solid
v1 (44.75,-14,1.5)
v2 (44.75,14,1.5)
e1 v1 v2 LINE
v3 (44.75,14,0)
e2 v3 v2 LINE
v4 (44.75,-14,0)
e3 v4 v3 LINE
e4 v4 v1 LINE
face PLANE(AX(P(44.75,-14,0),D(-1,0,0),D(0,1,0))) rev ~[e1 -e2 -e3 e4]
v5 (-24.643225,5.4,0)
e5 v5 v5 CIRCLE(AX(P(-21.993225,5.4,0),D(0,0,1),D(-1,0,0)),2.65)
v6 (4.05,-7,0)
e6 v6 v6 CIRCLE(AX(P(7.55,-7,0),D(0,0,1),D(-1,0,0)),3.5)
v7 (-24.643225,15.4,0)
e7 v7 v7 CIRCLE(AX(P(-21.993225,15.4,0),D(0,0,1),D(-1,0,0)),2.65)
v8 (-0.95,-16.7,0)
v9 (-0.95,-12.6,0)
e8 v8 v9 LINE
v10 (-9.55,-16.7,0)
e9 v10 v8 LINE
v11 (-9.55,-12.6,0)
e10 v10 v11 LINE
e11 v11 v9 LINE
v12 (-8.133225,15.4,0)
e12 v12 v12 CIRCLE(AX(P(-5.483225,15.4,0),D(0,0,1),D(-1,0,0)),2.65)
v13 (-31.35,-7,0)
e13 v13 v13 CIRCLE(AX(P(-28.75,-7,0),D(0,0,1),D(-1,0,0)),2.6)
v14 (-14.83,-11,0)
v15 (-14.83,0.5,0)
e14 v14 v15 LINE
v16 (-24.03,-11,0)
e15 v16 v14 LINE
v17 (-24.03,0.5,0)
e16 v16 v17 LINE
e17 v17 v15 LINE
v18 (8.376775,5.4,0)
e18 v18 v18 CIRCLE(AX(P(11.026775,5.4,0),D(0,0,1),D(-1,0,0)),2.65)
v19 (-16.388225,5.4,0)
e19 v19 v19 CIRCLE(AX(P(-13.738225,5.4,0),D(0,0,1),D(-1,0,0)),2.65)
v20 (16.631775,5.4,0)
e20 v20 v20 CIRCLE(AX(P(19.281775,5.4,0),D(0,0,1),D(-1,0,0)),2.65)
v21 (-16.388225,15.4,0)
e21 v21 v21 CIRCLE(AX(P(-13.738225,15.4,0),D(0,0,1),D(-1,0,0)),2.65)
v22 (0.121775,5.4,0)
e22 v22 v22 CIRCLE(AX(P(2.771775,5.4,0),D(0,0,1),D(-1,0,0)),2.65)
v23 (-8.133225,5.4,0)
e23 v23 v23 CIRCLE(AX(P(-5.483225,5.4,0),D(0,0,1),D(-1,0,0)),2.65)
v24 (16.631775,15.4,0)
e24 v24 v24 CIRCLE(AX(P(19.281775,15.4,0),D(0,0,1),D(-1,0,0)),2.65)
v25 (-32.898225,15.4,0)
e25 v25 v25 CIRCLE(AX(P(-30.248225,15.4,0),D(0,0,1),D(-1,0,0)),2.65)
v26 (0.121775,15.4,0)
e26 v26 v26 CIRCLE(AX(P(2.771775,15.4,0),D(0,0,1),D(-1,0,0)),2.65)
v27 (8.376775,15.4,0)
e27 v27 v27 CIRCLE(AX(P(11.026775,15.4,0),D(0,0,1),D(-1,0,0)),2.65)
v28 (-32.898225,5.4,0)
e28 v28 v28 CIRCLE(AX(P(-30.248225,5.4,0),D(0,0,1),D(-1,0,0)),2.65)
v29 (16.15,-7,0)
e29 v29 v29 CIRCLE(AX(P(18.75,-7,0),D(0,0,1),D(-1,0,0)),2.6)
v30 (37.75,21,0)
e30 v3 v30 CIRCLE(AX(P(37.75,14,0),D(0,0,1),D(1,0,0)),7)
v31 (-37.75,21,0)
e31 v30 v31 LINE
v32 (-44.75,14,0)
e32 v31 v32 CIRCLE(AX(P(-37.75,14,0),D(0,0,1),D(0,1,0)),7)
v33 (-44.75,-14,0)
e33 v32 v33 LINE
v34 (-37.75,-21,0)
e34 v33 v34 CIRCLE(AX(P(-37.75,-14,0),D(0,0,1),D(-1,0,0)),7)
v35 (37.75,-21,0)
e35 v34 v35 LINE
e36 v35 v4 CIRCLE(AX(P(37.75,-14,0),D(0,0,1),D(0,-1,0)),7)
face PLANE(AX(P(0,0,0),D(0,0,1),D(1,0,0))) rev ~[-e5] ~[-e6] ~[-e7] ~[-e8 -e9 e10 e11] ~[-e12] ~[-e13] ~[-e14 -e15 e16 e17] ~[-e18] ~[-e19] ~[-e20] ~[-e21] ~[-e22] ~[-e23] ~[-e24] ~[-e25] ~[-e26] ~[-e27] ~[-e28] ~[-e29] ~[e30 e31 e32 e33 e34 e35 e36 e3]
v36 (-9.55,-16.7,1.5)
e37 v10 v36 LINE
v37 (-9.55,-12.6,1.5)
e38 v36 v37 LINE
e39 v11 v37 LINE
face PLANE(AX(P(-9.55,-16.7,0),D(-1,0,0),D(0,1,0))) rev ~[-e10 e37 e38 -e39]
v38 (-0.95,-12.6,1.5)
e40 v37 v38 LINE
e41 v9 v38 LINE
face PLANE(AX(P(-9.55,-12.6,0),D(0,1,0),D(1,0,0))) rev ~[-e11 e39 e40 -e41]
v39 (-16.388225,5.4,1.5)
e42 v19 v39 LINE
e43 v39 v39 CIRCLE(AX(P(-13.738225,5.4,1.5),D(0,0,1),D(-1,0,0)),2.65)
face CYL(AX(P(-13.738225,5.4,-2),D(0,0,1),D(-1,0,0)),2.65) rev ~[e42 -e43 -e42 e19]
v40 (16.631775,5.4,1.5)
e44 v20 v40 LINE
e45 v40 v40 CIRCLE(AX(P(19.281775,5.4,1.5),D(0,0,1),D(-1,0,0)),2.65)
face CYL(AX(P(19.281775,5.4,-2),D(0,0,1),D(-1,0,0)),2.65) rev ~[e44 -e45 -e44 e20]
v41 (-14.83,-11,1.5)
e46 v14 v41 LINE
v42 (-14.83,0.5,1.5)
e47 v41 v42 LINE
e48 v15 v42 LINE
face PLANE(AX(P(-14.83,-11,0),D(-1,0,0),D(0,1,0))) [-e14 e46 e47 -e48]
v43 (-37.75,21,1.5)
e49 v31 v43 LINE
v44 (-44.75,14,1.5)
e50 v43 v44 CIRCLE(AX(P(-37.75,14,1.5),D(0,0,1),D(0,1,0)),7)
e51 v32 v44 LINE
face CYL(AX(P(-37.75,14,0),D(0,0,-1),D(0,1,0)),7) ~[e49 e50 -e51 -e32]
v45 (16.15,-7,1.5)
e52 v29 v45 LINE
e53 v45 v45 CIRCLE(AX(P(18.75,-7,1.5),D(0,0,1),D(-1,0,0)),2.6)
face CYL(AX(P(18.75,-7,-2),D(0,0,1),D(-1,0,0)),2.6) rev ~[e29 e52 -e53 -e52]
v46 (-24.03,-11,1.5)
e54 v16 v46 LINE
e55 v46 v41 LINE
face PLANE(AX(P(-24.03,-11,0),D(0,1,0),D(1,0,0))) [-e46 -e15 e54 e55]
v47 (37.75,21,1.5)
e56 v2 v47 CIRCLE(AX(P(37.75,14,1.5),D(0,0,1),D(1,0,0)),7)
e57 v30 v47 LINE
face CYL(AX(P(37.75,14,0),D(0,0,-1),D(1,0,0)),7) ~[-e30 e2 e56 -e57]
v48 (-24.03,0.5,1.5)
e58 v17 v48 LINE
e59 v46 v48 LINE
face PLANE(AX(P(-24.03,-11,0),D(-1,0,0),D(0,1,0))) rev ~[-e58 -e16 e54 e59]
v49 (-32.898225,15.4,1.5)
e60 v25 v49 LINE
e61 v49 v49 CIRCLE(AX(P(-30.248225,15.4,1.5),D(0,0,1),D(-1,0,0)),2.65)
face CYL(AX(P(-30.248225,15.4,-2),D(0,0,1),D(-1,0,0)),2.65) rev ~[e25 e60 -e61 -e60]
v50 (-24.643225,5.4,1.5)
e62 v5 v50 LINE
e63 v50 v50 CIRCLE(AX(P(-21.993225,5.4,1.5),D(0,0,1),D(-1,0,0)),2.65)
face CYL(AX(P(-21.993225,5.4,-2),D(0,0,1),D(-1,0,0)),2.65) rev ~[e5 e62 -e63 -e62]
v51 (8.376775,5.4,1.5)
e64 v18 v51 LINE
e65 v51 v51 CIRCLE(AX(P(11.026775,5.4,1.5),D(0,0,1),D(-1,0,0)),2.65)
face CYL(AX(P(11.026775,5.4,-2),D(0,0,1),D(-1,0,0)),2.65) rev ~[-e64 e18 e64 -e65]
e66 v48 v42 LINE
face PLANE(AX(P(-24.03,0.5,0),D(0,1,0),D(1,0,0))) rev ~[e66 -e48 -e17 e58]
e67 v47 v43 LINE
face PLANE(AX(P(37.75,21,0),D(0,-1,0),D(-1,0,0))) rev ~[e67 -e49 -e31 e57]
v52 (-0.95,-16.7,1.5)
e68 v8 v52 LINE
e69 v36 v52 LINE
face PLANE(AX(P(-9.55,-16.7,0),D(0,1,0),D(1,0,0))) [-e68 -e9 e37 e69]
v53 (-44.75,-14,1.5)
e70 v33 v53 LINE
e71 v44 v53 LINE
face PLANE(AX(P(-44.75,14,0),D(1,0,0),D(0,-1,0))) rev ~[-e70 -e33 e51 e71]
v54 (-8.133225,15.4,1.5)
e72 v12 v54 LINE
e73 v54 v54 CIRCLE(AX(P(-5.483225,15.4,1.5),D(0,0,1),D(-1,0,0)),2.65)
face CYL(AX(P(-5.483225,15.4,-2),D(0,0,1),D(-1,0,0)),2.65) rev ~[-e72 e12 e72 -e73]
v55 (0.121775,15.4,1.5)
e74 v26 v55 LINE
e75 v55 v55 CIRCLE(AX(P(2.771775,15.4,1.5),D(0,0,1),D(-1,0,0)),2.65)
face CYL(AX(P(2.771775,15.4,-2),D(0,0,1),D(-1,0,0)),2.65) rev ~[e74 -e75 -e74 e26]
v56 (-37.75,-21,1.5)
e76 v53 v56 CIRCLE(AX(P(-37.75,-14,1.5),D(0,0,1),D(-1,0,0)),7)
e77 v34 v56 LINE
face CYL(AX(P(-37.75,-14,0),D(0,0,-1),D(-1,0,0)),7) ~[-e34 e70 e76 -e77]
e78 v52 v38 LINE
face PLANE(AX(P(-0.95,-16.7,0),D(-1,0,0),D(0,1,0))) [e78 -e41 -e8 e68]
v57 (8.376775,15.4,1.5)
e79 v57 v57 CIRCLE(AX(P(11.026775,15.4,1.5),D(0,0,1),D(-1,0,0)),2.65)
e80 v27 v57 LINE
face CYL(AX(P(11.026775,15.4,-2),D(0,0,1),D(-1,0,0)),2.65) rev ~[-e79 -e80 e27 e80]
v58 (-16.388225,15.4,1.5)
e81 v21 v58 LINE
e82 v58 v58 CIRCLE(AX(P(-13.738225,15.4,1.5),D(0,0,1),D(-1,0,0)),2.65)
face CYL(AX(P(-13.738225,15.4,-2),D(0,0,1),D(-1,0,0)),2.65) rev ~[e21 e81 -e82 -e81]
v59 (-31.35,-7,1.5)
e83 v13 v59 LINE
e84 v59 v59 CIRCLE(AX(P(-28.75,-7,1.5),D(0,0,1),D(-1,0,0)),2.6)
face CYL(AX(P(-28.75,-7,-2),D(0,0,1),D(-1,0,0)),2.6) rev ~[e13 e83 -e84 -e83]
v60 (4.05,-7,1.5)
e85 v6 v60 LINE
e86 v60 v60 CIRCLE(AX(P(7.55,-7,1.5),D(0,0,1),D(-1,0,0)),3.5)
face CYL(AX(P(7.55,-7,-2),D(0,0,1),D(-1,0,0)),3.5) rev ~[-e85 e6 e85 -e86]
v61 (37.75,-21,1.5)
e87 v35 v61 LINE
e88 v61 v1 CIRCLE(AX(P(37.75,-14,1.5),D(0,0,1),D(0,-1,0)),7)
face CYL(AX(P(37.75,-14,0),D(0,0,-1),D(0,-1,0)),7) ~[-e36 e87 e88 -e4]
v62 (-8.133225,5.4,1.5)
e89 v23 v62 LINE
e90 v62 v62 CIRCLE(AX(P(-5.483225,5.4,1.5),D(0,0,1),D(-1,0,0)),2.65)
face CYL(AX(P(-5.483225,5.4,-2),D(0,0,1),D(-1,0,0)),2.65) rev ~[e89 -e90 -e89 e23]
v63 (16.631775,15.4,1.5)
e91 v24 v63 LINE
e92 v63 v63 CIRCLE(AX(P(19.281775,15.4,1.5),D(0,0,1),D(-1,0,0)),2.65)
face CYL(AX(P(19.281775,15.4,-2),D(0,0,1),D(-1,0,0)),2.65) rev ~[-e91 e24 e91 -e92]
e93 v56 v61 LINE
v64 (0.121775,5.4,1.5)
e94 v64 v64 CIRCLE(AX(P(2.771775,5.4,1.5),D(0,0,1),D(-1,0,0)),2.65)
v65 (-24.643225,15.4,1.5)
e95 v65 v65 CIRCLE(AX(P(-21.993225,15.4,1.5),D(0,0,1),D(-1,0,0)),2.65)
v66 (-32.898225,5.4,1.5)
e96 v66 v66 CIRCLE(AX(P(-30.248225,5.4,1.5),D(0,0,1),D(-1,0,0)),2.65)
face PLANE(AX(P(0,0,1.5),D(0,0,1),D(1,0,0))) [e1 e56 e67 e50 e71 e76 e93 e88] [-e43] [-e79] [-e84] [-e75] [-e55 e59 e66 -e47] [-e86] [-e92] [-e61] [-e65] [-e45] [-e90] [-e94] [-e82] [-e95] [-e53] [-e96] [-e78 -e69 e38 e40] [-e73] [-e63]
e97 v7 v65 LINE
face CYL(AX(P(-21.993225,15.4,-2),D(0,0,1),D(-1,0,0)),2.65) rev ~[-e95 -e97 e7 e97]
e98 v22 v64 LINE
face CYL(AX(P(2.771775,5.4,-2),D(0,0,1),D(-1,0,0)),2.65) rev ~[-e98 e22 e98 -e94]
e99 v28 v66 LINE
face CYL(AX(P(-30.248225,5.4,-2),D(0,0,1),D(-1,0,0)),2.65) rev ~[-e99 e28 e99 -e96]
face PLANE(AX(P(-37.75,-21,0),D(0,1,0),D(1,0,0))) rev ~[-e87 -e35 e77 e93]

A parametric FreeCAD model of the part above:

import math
import FreeCAD as App
import Part
import Sketcher
Q = App.Units.Quantity

doc = App.newDocument("Part")
body = doc.addObject("PartDesign::Body", "Body")

# Sketch on XY plane
sketch1 = body.newObject("Sketcher::SketchObject", "Sketch")
sketch1.AttachmentSupport = (doc.getObject("XY_Plane"), [""])
sketch1.MapMode = "FlatFace"
sketch1.addGeometry([
    Part.LineSegment(App.Vector(-37.75, -21, 0), App.Vector(37.75, -21, 0)),  # 0
    Part.ArcOfCircle(Part.Circle(App.Vector(37.75, -14, 0), App.Vector(0, 0, 1), 7), math.radians(-90), math.radians(0)),  # 1
    Part.LineSegment(App.Vector(44.75, -14, 0), App.Vector(44.75, 14, 0)),  # 2
    Part.ArcOfCircle(Part.Circle(App.Vector(37.75, 14, 0), App.Vector(0, 0, 1), 7), math.radians(0), math.radians(90)),  # 3
    Part.LineSegment(App.Vector(37.75, 21, 0), App.Vector(-37.75, 21, 0)),  # 4
    Part.ArcOfCircle(Part.Circle(App.Vector(-37.75, 14, 0), App.Vector(0, 0, 1), 7), math.radians(90), math.radians(180)),  # 5
    Part.LineSegment(App.Vector(-44.75, 14, 0), App.Vector(-44.75, -14, 0)),  # 6
    Part.ArcOfCircle(Part.Circle(App.Vector(-37.75, -14, 0), App.Vector(0, 0, 1), 7), math.radians(180), math.radians(270)),  # 7
    Part.LineSegment(App.Vector(-0.95, -16.7, 0), App.Vector(-9.55, -16.7, 0)),  # 8
    Part.LineSegment(App.Vector(-9.55, -16.7, 0), App.Vector(-9.55, -12.6, 0)),  # 9
    Part.LineSegment(App.Vector(-9.55, -12.6, 0), App.Vector(-0.95, -12.6, 0)),  # 10
    Part.LineSegment(App.Vector(-0.95, -12.6, 0), App.Vector(-0.95, -16.7, 0)),  # 11
    Part.LineSegment(App.Vector(-14.83, -11, 0), App.Vector(-24.03, -11, 0)),  # 12
    Part.LineSegment(App.Vector(-24.03, -11, 0), App.Vector(-24.03, 0.5, 0)),  # 13
    Part.LineSegment(App.Vector(-24.03, 0.5, 0), App.Vector(-14.83, 0.5, 0)),  # 14
    Part.LineSegment(App.Vector(-14.83, 0.5, 0), App.Vector(-14.83, -11, 0)),  # 15
], False)
sketch1.addConstraint([
    Sketcher.Constraint("Tangent", 0, 2, 1, 1),
    Sketcher.Constraint("Tangent", 1, 2, 2, 1),
    Sketcher.Constraint("Tangent", 2, 2, 3, 1),
    Sketcher.Constraint("Tangent", 3, 2, 4, 1),
    Sketcher.Constraint("Tangent", 4, 2, 5, 1),
    Sketcher.Constraint("Tangent", 5, 2, 6, 1),
    Sketcher.Constraint("Tangent", 6, 2, 7, 1),
    Sketcher.Constraint("Tangent", 7, 2, 0, 1),
    Sketcher.Constraint("Coincident", 8, 2, 9, 1),
    Sketcher.Constraint("Coincident", 9, 2, 10, 1),
    Sketcher.Constraint("Coincident", 10, 2, 11, 1),
    Sketcher.Constraint("Coincident", 11, 2, 8, 1),
    Sketcher.Constraint("Coincident", 12, 2, 13, 1),
    Sketcher.Constraint("Coincident", 13, 2, 14, 1),
    Sketcher.Constraint("Coincident", 14, 2, 15, 1),
    Sketcher.Constraint("Coincident", 15, 2, 12, 1),
    Sketcher.Constraint("Horizontal", 0),
    Sketcher.Constraint("Vertical", 2),
    Sketcher.Constraint("Horizontal", 4),
    Sketcher.Constraint("Vertical", 6),
    Sketcher.Constraint("Horizontal", 8),
    Sketcher.Constraint("Vertical", 9),
    Sketcher.Constraint("Horizontal", 10),
    Sketcher.Constraint("Vertical", 11),
    Sketcher.Constraint("Horizontal", 12),
    Sketcher.Constraint("Vertical", 13),
    Sketcher.Constraint("Horizontal", 14),
    Sketcher.Constraint("Vertical", 15),
    Sketcher.Constraint("Equal", 1, 3),
    Sketcher.Constraint("Equal", 3, 5),
    Sketcher.Constraint("Equal", 5, 7),
    Sketcher.Constraint("Symmetric", 1, 3, 5, 3, -1, 1),
    Sketcher.Constraint("Radius", 1, Q("7 mm")),
    Sketcher.Constraint("DistanceY", 2, 1, 2, 2, Q("28 mm")),
    Sketcher.Constraint("DistanceX", 0, 1, 0, 2, Q("75.5 mm")),
    Sketcher.Constraint("DistanceX", 8, 2, 8, 1, Q("8.6 mm")),
    Sketcher.Constraint("DistanceX", 12, 2, 12, 1, Q("9.2 mm")),
    Sketcher.Constraint("DistanceY", 9, 1, 9, 2, Q("4.1 mm")),
    Sketcher.Constraint("DistanceY", 13, 1, 13, 2, Q("11.5 mm")),
    Sketcher.Constraint("DistanceY", 12, 2, -1, 1, Q("11 mm")),
    Sketcher.Constraint("DistanceY", 8, 2, -1, 1, Q("16.7 mm")),
    Sketcher.Constraint("DistanceX", 7, 3, 8, 2, Q("28.2 mm")),
    Sketcher.Constraint("DistanceX", 12, 2, -1, 1, Q("24.03 mm")),
])
pad1 = body.newObject("PartDesign::Pad", "Pad")
pad1.Profile = sketch1
pad1.Length = 1.5

# Sketch on XY plane
sketch2 = body.newObject("Sketcher::SketchObject", "Sketch001")
sketch2.AttachmentSupport = (doc.getObject("XY_Plane"), [""])
sketch2.MapMode = "FlatFace"
sketch2.addGeometry([
    Part.Circle(App.Vector(18.75, -7, 0), App.Vector(0, 0, 1), 2.6),
    Part.Circle(App.Vector(-28.75, -7, 0), App.Vector(0, 0, 1), 2.6),
], False)
sketch2.addConstraint([
    Sketcher.Constraint("Equal", 0, 1),
    Sketcher.Constraint("Horizontal", 0, 3, 1, 3),
    Sketcher.Constraint("Diameter", 0, Q("5.2 mm")),
    Sketcher.Constraint("DistanceY", 0, 3, -1, 1, Q("7 mm")),
    Sketcher.Constraint("DistanceX", 1, 3, 0, 3, Q("47.5 mm")),
    Sketcher.Constraint("DistanceX", -1, 1, 0, 3, Q("18.75 mm")),
])
doc.recompute()
hole = body.newObject("PartDesign::Hole", "Hole")
hole.Profile = sketch2
hole.ThreadType = "None"
hole.Diameter = 5.2
hole.DepthType = "Dimension"
hole.Depth = 2
hole.DrillPoint = "Angled"
hole.DrillPointAngle = 118
hole.Reversed = True

# Sketch on XY plane
sketch3 = body.newObject("Sketcher::SketchObject", "Sketch002")
sketch3.AttachmentSupport = (doc.getObject("XY_Plane"), [""])
sketch3.MapMode = "FlatFace"
sketch3.addGeometry(Part.Circle(App.Vector(7.55, -7, 0), App.Vector(0, 0, 1), 3.5), False)
sketch3.addConstraint([
    Sketcher.Constraint("Diameter", 0, Q("7 mm")),
    Sketcher.Constraint("DistanceY", 0, 3, -1, 1, Q("7 mm")),
    Sketcher.Constraint("DistanceX", -1, 1, 0, 3, Q("7.55 mm")),
])
doc.recompute()
hole2 = body.newObject("PartDesign::Hole", "Hole001")
hole2.Profile = sketch3
hole2.ThreadType = "None"
hole2.Diameter = 7
hole2.DepthType = "Dimension"
hole2.Depth = 2
hole2.DrillPoint = "Angled"
hole2.DrillPointAngle = 118
hole2.Reversed = True

# Sketch on XY plane
sketch4 = body.newObject("Sketcher::SketchObject", "Sketch003")
sketch4.AttachmentSupport = (doc.getObject("XY_Plane"), [""])
sketch4.MapMode = "FlatFace"
sketch4.addGeometry([
    Part.Circle(App.Vector(-30.248225, 5.4, 0), App.Vector(0, 0, 1), 2.65),  # 0
    Part.Circle(App.Vector(-30.248225, 15.4, 0), App.Vector(0, 0, 1), 2.65),  # 1
    Part.Circle(App.Vector(-21.993225, 15.4, 0), App.Vector(0, 0, 1), 2.65),  # 2
    Part.Circle(App.Vector(-21.993225, 5.4, 0), App.Vector(0, 0, 1), 2.65),  # 3
    Part.Circle(App.Vector(-13.738225, 15.4, 0), App.Vector(0, 0, 1), 2.65),  # 4
    Part.Circle(App.Vector(-13.738225, 5.4, 0), App.Vector(0, 0, 1), 2.65),  # 5
    Part.Circle(App.Vector(-5.483225, 15.4, 0), App.Vector(0, 0, 1), 2.65),  # 6
    Part.Circle(App.Vector(-5.483225, 5.4, 0), App.Vector(0, 0, 1), 2.65),  # 7
    Part.Circle(App.Vector(2.771775, 15.4, 0), App.Vector(0, 0, 1), 2.65),  # 8
    Part.Circle(App.Vector(2.771775, 5.4, 0), App.Vector(0, 0, 1), 2.65),  # 9
    Part.Circle(App.Vector(11.026775, 15.4, 0), App.Vector(0, 0, 1), 2.65),  # 10
    Part.Circle(App.Vector(11.026775, 5.4, 0), App.Vector(0, 0, 1), 2.65),  # 11
    Part.Circle(App.Vector(19.281775, 15.4, 0), App.Vector(0, 0, 1), 2.65),  # 12
    Part.Circle(App.Vector(19.281775, 5.4, 0), App.Vector(0, 0, 1), 2.65),  # 13
], False)
sketch4.addConstraint([
    Sketcher.Constraint("Equal", 0, 1),
    Sketcher.Constraint("Equal", 1, 2),
    Sketcher.Constraint("Equal", 2, 3),
    Sketcher.Constraint("Equal", 3, 4),
    Sketcher.Constraint("Equal", 4, 5),
    Sketcher.Constraint("Equal", 5, 6),
    Sketcher.Constraint("Equal", 6, 7),
    Sketcher.Constraint("Equal", 7, 8),
    Sketcher.Constraint("Equal", 8, 9),
    Sketcher.Constraint("Equal", 9, 10),
    Sketcher.Constraint("Equal", 10, 11),
    Sketcher.Constraint("Equal", 11, 12),
    Sketcher.Constraint("Equal", 12, 13),
    Sketcher.Constraint("Horizontal", 1, 3, 2, 3),
    Sketcher.Constraint("Horizontal", 0, 3, 3, 3),
    Sketcher.Constraint("Horizontal", 2, 3, 4, 3),
    Sketcher.Constraint("Horizontal", 3, 3, 5, 3),
    Sketcher.Constraint("Horizontal", 4, 3, 6, 3),
    Sketcher.Constraint("Horizontal", 5, 3, 7, 3),
    Sketcher.Constraint("Horizontal", 6, 3, 8, 3),
    Sketcher.Constraint("Horizontal", 7, 3, 9, 3),
    Sketcher.Constraint("Horizontal", 8, 3, 10, 3),
    Sketcher.Constraint("Horizontal", 9, 3, 11, 3),
    Sketcher.Constraint("Horizontal", 10, 3, 12, 3),
    Sketcher.Constraint("Horizontal", 11, 3, 13, 3),
    Sketcher.Constraint("Vertical", 0, 3, 1, 3),
    Sketcher.Constraint("Vertical", 2, 3, 3, 3),
    Sketcher.Constraint("Vertical", 4, 3, 5, 3),
    Sketcher.Constraint("Vertical", 6, 3, 7, 3),
    Sketcher.Constraint("Vertical", 8, 3, 9, 3),
    Sketcher.Constraint("Vertical", 10, 3, 11, 3),
    Sketcher.Constraint("Vertical", 12, 3, 13, 3),
    Sketcher.Constraint("Diameter", 0, Q("5.3 mm")),
    Sketcher.Constraint("DistanceY", 0, 3, 1, 3, Q("10 mm")),
    Sketcher.Constraint("DistanceY", -1, 1, 0, 3, Q("5.4 mm")),
    Sketcher.Constraint("DistanceX", 1, 3, 4, 3, Q("16.51 mm")),
    Sketcher.Constraint("DistanceX", 2, 3, 6, 3, Q("16.51 mm")),
    Sketcher.Constraint("DistanceX", 4, 3, 8, 3, Q("16.51 mm")),
    Sketcher.Constraint("DistanceX", 6, 3, 10, 3, Q("16.51 mm")),
    Sketcher.Constraint("DistanceX", 8, 3, 12, 3, Q("16.51 mm")),
    Sketcher.Constraint("DistanceX", 1, 3, 2, 3, Q("8.255 mm")),
    Sketcher.Constraint("DistanceX", 0, 3, -1, 1, Q("30.248225 mm")),
])
doc.recompute()
hole3 = body.newObject("PartDesign::Hole", "Hole002")
hole3.Profile = sketch4
hole3.ThreadType = "None"
hole3.Diameter = 5.3
hole3.DepthType = "Dimension"
hole3.Depth = 2
hole3.DrillPoint = "Angled"
hole3.DrillPointAngle = 118
hole3.Reversed = True

doc.recompute()
